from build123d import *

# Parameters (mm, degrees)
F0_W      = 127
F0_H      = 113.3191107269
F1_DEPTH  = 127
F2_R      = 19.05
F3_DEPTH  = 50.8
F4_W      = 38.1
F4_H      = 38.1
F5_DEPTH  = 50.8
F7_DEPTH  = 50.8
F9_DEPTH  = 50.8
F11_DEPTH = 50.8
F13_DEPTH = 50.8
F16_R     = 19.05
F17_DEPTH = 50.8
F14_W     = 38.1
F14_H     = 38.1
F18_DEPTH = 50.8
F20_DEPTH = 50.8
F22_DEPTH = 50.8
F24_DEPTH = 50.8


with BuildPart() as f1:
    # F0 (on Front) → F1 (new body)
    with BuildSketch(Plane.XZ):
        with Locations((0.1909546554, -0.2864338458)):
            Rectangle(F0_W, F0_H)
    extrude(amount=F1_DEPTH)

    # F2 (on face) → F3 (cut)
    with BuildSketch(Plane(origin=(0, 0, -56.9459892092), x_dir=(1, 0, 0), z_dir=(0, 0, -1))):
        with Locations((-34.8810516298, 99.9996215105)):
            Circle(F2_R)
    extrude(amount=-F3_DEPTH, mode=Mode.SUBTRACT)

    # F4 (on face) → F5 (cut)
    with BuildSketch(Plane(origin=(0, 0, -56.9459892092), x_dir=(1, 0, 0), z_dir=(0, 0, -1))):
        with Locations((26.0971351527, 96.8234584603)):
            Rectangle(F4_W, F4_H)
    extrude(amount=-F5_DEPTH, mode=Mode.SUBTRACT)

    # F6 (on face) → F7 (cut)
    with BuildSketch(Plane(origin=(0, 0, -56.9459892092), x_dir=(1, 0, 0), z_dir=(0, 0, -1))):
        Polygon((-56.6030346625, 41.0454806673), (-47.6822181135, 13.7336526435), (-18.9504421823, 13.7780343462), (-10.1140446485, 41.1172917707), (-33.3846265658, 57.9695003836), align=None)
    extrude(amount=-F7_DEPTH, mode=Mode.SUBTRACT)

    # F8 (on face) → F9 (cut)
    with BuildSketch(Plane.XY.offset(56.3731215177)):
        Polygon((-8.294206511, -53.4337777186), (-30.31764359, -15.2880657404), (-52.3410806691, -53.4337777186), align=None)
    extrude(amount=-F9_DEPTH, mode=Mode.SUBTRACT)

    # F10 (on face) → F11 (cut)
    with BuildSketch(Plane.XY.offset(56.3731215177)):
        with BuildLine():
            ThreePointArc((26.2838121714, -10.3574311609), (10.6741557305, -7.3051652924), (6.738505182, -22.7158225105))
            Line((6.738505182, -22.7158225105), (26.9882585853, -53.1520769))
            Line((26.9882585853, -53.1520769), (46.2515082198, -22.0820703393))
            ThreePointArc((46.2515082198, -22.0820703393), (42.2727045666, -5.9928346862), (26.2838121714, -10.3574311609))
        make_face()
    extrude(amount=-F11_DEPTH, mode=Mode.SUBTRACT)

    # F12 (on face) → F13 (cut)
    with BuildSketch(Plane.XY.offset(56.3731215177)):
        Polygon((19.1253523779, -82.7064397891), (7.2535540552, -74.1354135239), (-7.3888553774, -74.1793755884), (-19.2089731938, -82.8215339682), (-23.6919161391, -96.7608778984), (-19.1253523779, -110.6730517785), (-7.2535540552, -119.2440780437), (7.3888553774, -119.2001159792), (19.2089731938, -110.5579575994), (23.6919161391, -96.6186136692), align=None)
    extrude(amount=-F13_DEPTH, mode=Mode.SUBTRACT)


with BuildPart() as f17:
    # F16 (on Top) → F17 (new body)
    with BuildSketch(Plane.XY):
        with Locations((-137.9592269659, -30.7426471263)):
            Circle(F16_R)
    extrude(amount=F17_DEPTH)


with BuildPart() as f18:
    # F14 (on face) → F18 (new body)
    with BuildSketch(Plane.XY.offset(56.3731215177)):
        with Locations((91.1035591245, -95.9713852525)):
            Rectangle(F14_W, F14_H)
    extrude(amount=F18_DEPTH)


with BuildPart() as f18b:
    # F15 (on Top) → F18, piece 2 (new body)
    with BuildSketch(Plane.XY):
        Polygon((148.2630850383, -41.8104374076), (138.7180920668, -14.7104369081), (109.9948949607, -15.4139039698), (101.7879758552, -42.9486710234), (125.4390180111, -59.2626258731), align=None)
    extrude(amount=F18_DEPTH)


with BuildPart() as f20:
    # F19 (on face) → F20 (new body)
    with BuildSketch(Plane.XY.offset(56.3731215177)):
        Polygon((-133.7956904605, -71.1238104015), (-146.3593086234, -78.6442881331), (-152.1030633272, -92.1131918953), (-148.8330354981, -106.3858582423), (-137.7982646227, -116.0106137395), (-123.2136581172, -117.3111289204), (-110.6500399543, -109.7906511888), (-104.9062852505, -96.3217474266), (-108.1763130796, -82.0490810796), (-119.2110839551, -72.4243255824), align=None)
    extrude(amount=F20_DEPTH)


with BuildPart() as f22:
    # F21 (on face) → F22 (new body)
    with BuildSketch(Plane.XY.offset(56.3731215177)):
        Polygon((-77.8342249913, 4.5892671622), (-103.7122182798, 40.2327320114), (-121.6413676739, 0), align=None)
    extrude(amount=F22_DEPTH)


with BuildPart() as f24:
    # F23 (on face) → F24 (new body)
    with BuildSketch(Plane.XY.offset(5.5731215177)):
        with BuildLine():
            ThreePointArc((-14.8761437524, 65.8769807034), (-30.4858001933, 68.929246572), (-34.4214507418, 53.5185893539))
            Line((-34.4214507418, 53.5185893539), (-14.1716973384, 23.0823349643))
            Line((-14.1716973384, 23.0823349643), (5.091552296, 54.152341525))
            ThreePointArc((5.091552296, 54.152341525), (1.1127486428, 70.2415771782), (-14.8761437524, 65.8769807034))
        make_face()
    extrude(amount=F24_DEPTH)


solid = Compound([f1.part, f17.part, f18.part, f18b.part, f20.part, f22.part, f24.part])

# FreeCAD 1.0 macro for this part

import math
import FreeCAD as App
import Part
import Sketcher

V = App.Vector
Q = App.Units.Quantity


def add_polygon(sketch, points):
    """Adds a closed chain of lines whose ends are joined by coincident constraints."""
    first, n = sketch.GeometryCount, len(points)
    for a, b in zip(points, points[1:] + points[:1]):
        sketch.addGeometry(Part.LineSegment(App.Vector(*a, 0), App.Vector(*b, 0)), False)
    for i in range(n):
        sketch.addConstraint(Sketcher.Constraint("Coincident", first + i, 2, first + (i + 1) % n, 1))

doc = App.newDocument("Part")
body = doc.addObject("PartDesign::Body", "Body")

sketch1 = body.newObject("Sketcher::SketchObject", "Sketch")
sketch1.AttachmentSupport = (doc.getObject("XZ_Plane"), [""])
sketch1.MapMode = "FlatFace"
add_polygon(sketch1, [(-63, 56), (-63, -57), (64, -57), (64, 56)])
sketch1.addConstraint(Sketcher.Constraint("Vertical", 0))
sketch1.addConstraint(Sketcher.Constraint("Horizontal", 1))
sketch1.addConstraint(Sketcher.Constraint("Vertical", 2))
sketch1.addConstraint(Sketcher.Constraint("Horizontal", 3))
sketch1.addConstraint(Sketcher.Constraint("DistanceX", 1, 1, 1, 2, Q("5 in")))
sketch1.addConstraint(Sketcher.Constraint("DistanceY", 0, 2, 0, 1, Q("113.319111 mm")))
sketch1.addConstraint(Sketcher.Constraint("DistanceY", 0, 2, -1, 1, Q("56.945989 mm")))
sketch1.addConstraint(Sketcher.Constraint("DistanceX", 0, 2, -1, 1, Q("63.309045 mm")))
pad1 = body.newObject("PartDesign::Pad", "Pad")
pad1.Profile = sketch1
pad1.Length = Q("5 in")

sketch2 = body.newObject("Sketcher::SketchObject", "Sketch001")
sketch2.AttachmentSupport = (doc.getObject("XY_Plane"), [""])
sketch2.MapMode = "FlatFace"
sketch2.AttachmentOffset = App.Placement(V(0, 0, -56.945989), App.Rotation())
sketch2.addGeometry(Part.Circle(V(-35, -100, 0), V(0, 0, 1), 19), False)
sketch2.addConstraint(Sketcher.Constraint("Diameter", 0, Q("1.5 in")))
sketch2.addConstraint(Sketcher.Constraint("DistanceX", 0, 3, -1, 1, Q("34.881052 mm")))
sketch2.addConstraint(Sketcher.Constraint("DistanceY", 0, 3, -1, 1, Q("99.999622 mm")))
pocket1 = body.newObject("PartDesign::Pocket", "Pocket")
pocket1.Profile = sketch2
pocket1.Length = Q("2 in")
pocket1.Reversed = True

sketch3 = body.newObject("Sketcher::SketchObject", "Sketch002")
sketch3.AttachmentSupport = (doc.getObject("XY_Plane"), [""])
sketch3.MapMode = "FlatFace"
sketch3.AttachmentOffset = App.Placement(V(0, 0, -56.945989), App.Rotation())
add_polygon(sketch3, [(7, -116), (7, -78), (45, -78), (45, -116)])
sketch3.addConstraint(Sketcher.Constraint("Vertical", 0))
sketch3.addConstraint(Sketcher.Constraint("Horizontal", 1))
sketch3.addConstraint(Sketcher.Constraint("Vertical", 2))
sketch3.addConstraint(Sketcher.Constraint("Horizontal", 3))
sketch3.addConstraint(Sketcher.Constraint("Equal", 3, 0))
sketch3.addConstraint(Sketcher.Constraint("DistanceX", 1, 1, 1, 2, Q("1.5 in")))
sketch3.addConstraint(Sketcher.Constraint("DistanceY", 0, 2, -1, 1, Q("77.773458 mm")))
sketch3.addConstraint(Sketcher.Constraint("DistanceX", -1, 1, 0, 2, Q("7.047135 mm")))
pocket2 = body.newObject("PartDesign::Pocket", "Pocket001")
pocket2.Profile = sketch3
pocket2.Length = Q("2 in")
pocket2.Reversed = True

sketch4 = body.newObject("Sketcher::SketchObject", "Sketch003")
sketch4.AttachmentSupport = (doc.getObject("XY_Plane"), [""])
sketch4.MapMode = "FlatFace"
sketch4.AttachmentOffset = App.Placement(V(0, 0, -56.945989), App.Rotation())
add_polygon(sketch4, [(-57, -41), (-48, -14), (-19, -14), (-10, -41), (-33, -58)])
sketch4.addConstraint(Sketcher.Constraint("Equal", 0, 1))
sketch4.addConstraint(Sketcher.Constraint("Equal", 1, 2))
sketch4.addConstraint(Sketcher.Constraint("Equal", 2, 3))
sketch4.addConstraint(Sketcher.Constraint("Equal", 3, 4))
sketch4.addConstraint(Sketcher.Constraint("DistanceY", 3, 2, 4, 2, Q("0.6663 in")))
sketch4.addConstraint(Sketcher.Constraint("DistanceY", 3, 2, -1, 1, Q("57.9695 mm")))
sketch4.addConstraint(Sketcher.Constraint("Distance", 0, Q("28.73181 mm")))
sketch4.addConstraint(Sketcher.Constraint("DistanceX", 0, 2, -1, 1, Q("47.682218 mm")))
sketch4.addConstraint(Sketcher.Constraint("DistanceY", 2, 2, -1, 1, Q("41.117292 mm")))
sketch4.addConstraint(Sketcher.Constraint("DistanceY", 1, 2, 0, 2, Q("0.044382 mm")))
pocket3 = body.newObject("PartDesign::Pocket", "Pocket002")
pocket3.Profile = sketch4
pocket3.Length = Q("2 in")
pocket3.Reversed = True

sketch5 = body.newObject("Sketcher::SketchObject", "Sketch004")
sketch5.AttachmentSupport = (doc.getObject("XY_Plane"), [""])
sketch5.MapMode = "FlatFace"
sketch5.AttachmentOffset = App.Placement(V(0, 0, 56.373122), App.Rotation())
add_polygon(sketch5, [(-8, -53), (-30, -15), (-52, -53)])
sketch5.addConstraint(Sketcher.Constraint("Horizontal", 2))
sketch5.addConstraint(Sketcher.Constraint("Equal", 0, 1))
sketch5.addConstraint(Sketcher.Constraint("Angle", 0, Q("120 deg")))
sketch5.addConstraint(Sketcher.Constraint("DistanceX", 2, 1, 2, 2, Q("44.046874 mm")))
sketch5.addConstraint(Sketcher.Constraint("DistanceX", 1, 2, -1, 1, Q("52.341081 mm")))
sketch5.addConstraint(Sketcher.Constraint("DistanceY", 0, 2, -1, 1, Q("15.288066 mm")))
pocket4 = body.newObject("PartDesign::Pocket", "Pocket003")
pocket4.Profile = sketch5
pocket4.Length = Q("2 in")

sketch6 = body.newObject("Sketcher::SketchObject", "Sketch005")
sketch6.AttachmentSupport = (doc.getObject("XY_Plane"), [""])
sketch6.MapMode = "FlatFace"
sketch6.AttachmentOffset = App.Placement(V(0, 0, 56.373122), App.Rotation())
sketch6.addGeometry(Part.ArcOfCircle(Part.Circle(V(17, -17, 0), V(0, 0, 1), 12), math.radians(36), math.radians(209)), False)
sketch6.addGeometry(Part.LineSegment(V(7, -23, 0), V(27, -53, 0)), False)
sketch6.addGeometry(Part.LineSegment(V(27, -53, 0), V(46, -22, 0)), False)
sketch6.addGeometry(Part.ArcOfCircle(Part.Circle(V(36, -16, 0), V(0, 0, 1), 12), math.radians(-32), math.radians(151)), False)
sketch6.addConstraint(Sketcher.Constraint("Coincident", 0, 2, 1, 1))
sketch6.addConstraint(Sketcher.Constraint("Coincident", 1, 2, 2, 1))
sketch6.addConstraint(Sketcher.Constraint("Tangent", 2, 2, 3, 1))
sketch6.addConstraint(Sketcher.Constraint("Coincident", 3, 2, 0, 1))
sketch6.addConstraint(Sketcher.Constraint("Equal", 0, 3))
sketch6.addConstraint(Sketcher.Constraint("Equal", 1, 2))
sketch6.addConstraint(Sketcher.Constraint("Radius", 0, Q("11.581087 mm")))
sketch6.addConstraint(Sketcher.Constraint("DistanceY", 2, 2, 3, 2, Q("0.4616 in")))
sketch6.addConstraint(Sketcher.Constraint("DistanceY", 2, 2, 3, 3, Q("6.102499 mm")))
sketch6.addConstraint(Sketcher.Constraint("DistanceX", -1, 1, 0, 3, Q("16.863382 mm")))
sketch6.addConstraint(Sketcher.Constraint("DistanceX", -1, 1, 3, 3, Q("36.408689 mm")))
sketch6.addConstraint(Sketcher.Constraint("DistanceY", 3, 3, -1, 1, Q("15.979571 mm")))
sketch6.addConstraint(Sketcher.Constraint("DistanceX", -1, 1, 1, 2, Q("26.988259 mm")))
pocket5 = body.newObject("PartDesign::Pocket", "Pocket004")
pocket5.Profile = sketch6
pocket5.Length = Q("2 in")

sketch7 = body.newObject("Sketcher::SketchObject", "Sketch006")
sketch7.AttachmentSupport = (doc.getObject("XY_Plane"), [""])
sketch7.MapMode = "FlatFace"
sketch7.AttachmentOffset = App.Placement(V(0, 0, 56.373122), App.Rotation())
add_polygon(sketch7, [(19.125352, -82.70644), (7.253554, -74.135414), (-7.388855, -74.179376), (-19.208973, -82.821534), (-23.691916, -96.760878), (-19.125352, -110.673052), (-7.253554, -119.244078), (7.388855, -119.200116), (19.208973, -110.557958), (23.691916, -96.618614)])
sketch7.addConstraint(Sketcher.Constraint("Parallel", 0, 5))
sketch7.addConstraint(Sketcher.Constraint("Parallel", 1, 6))
sketch7.addConstraint(Sketcher.Constraint("Parallel", 2, 7))
sketch7.addConstraint(Sketcher.Constraint("Parallel", 3, 8))
sketch7.addConstraint(Sketcher.Constraint("Parallel", 4, 9))
sketch7.addConstraint(Sketcher.Constraint("Equal", 0, 1))
sketch7.addConstraint(Sketcher.Constraint("Equal", 1, 2))
sketch7.addConstraint(Sketcher.Constraint("Equal", 2, 3))
sketch7.addConstraint(Sketcher.Constraint("Equal", 3, 4))
sketch7.addConstraint(Sketcher.Constraint("Equal", 4, 5))
sketch7.addConstraint(Sketcher.Constraint("Equal", 5, 6))
sketch7.addConstraint(Sketcher.Constraint("Equal", 6, 7))
sketch7.addConstraint(Sketcher.Constraint("DistanceX", 1, 2, -1, 1, Q("0.2908998 in")))
sketch7.addConstraint(Sketcher.Constraint("DistanceX", -1, 1, 6, 2, Q("0.2908998 in")))
sketch7.addConstraint(Sketcher.Constraint("DistanceX", 4, 2, 5, 2, Q("11.871798 mm")))
sketch7.addConstraint(Sketcher.Constraint("DistanceY", 5, 2, 3, 2, Q("22.4832 mm")))
sketch7.addConstraint(Sketcher.Constraint("DistanceX", 1, 2, 5, 2, Q("0.135301 mm")))
sketch7.addConstraint(Sketcher.Constraint("DistanceY", 4, 2, -1, 1, Q("110.673052 mm")))
sketch7.addConstraint(Sketcher.Constraint("DistanceY", 5, 2, -1, 1, Q("119.244078 mm")))
sketch7.addConstraint(Sketcher.Constraint("DistanceY", 9, 2, -1, 1, Q("82.70644 mm")))
pocket6 = body.newObject("PartDesign::Pocket", "Pocket005")
pocket6.Profile = sketch7
pocket6.Length = Q("2 in")
body2 = doc.addObject("PartDesign::Body", "Body001")

sketch8 = body2.newObject("Sketcher::SketchObject", "Sketch007")
sketch8.AttachmentSupport = (doc.getObject("XY_Plane001"), [""])
sketch8.MapMode = "FlatFace"
sketch8.addGeometry(Part.Circle(V(-138, -31, 0), V(0, 0, 1), 19), False)
sketch8.addConstraint(Sketcher.Constraint("Diameter", 0, Q("1.5 in")))
sketch8.addConstraint(Sketcher.Constraint("DistanceX", 0, 3, -1, 1, Q("137.959227 mm")))
sketch8.addConstraint(Sketcher.Constraint("DistanceY", 0, 3, -1, 1, Q("30.742647 mm")))
pad2 = body2.newObject("PartDesign::Pad", "Pad001")
pad2.Profile = sketch8
pad2.Length = Q("2 in")
body3 = doc.addObject("PartDesign::Body", "Body002")

sketch9 = body3.newObject("Sketcher::SketchObject", "Sketch008")
sketch9.AttachmentSupport = (doc.getObject("XY_Plane002"), [""])
sketch9.MapMode = "FlatFace"
sketch9.AttachmentOffset = App.Placement(V(0, 0, 56.373122), App.Rotation())
add_polygon(sketch9, [(72, -77), (72, -115), (110, -115), (110, -77)])
sketch9.addConstraint(Sketcher.Constraint("Vertical", 0))
sketch9.addConstraint(Sketcher.Constraint("Horizontal", 1))
sketch9.addConstraint(Sketcher.Constraint("Vertical", 2))
sketch9.addConstraint(Sketcher.Constraint("Horizontal", 3))
sketch9.addConstraint(Sketcher.Constraint("Equal", 3, 0))
sketch9.addConstraint(Sketcher.Constraint("DistanceX", 1, 1, 1, 2, Q("1.5 in")))
sketch9.addConstraint(Sketcher.Constraint("DistanceX", -1, 1, 0, 2, Q("72.053559 mm")))
sketch9.addConstraint(Sketcher.Constraint("DistanceY", 0, 2, -1, 1, Q("115.021385 mm")))
pad3 = body3.newObject("PartDesign::Pad", "Pad002")
pad3.Profile = sketch9
pad3.Length = Q("2 in")
body4 = doc.addObject("PartDesign::Body", "Body003")

sketch10 = body4.newObject("Sketcher::SketchObject", "Sketch009")
sketch10.AttachmentSupport = (doc.getObject("XY_Plane003"), [""])
sketch10.MapMode = "FlatFace"
add_polygon(sketch10, [(148, -42), (139, -15), (110, -15), (102, -43), (125, -59)])
sketch10.addConstraint(Sketcher.Constraint("Equal", 0, 1))
sketch10.addConstraint(Sketcher.Constraint("Equal", 1, 2))
sketch10.addConstraint(Sketcher.Constraint("Equal", 2, 3))
sketch10.addConstraint(Sketcher.Constraint("Equal", 3, 4))
sketch10.addConstraint(Sketcher.Constraint("DistanceY", 4, 2, 0, 2, Q("27.100001 mm")))
sketch10.addConstraint(Sketcher.Constraint("Distance", 0, Q("28.73181 mm")))
sketch10.addConstraint(Sketcher.Constraint("DistanceY", 2, 2, -1, 1, Q("42.948671 mm")))
sketch10.addConstraint(Sketcher.Constraint("DistanceX", -1, 1, 3, 2, Q("125.439018 mm")))
sketch10.addConstraint(Sketcher.Constraint("DistanceX", 2, 2, 1, 2, Q("8.206919 mm")))
sketch10.addConstraint(Sketcher.Constraint("DistanceY", 3, 2, 1, 2, Q("43.848722 mm")))
pad4 = body4.newObject("PartDesign::Pad", "Pad003")
pad4.Profile = sketch10
pad4.Length = Q("2 in")
body5 = doc.addObject("PartDesign::Body", "Body004")

sketch11 = body5.newObject("Sketcher::SketchObject", "Sketch010")
sketch11.AttachmentSupport = (doc.getObject("XY_Plane004"), [""])
sketch11.MapMode = "FlatFace"
sketch11.AttachmentOffset = App.Placement(V(0, 0, 56.373122), App.Rotation())
add_polygon(sketch11, [(-134, -71), (-146, -79), (-152, -92), (-149, -106), (-138, -116), (-123, -117), (-111, -110), (-105, -96), (-108, -82), (-119, -72)])
sketch11.addConstraint(Sketcher.Constraint("Parallel", 0, 5))
sketch11.addConstraint(Sketcher.Constraint("Parallel", 1, 6))
sketch11.addConstraint(Sketcher.Constraint("Parallel", 2, 7))
sketch11.addConstraint(Sketcher.Constraint("Parallel", 3, 8))
sketch11.addConstraint(Sketcher.Constraint("Parallel", 4, 9))
sketch11.addConstraint(Sketcher.Constraint("Equal", 0, 1))
sketch11.addConstraint(Sketcher.Constraint("Equal", 1, 2))
sketch11.addConstraint(Sketcher.Constraint("Equal", 2, 3))
sketch11.addConstraint(Sketcher.Constraint("Equal", 3, 4))
sketch11.addConstraint(Sketcher.Constraint("Equal", 4, 5))
sketch11.addConstraint(Sketcher.Constraint("Equal", 5, 6))
sketch11.addConstraint(Sketcher.Constraint("Equal", 6, 7))
sketch11.addConstraint(Sketcher.Constraint("DistanceX", 1, 2, 3, 2, Q("14.304799 mm")))
sketch11.addConstraint(Sketcher.Constraint("DistanceX", 0, 2, -1, 1, Q("146.359309 mm")))
sketch11.addConstraint(Sketcher.Constraint("DistanceY", 0, 2, -1, 1, Q("78.644288 mm")))
sketch11.addConstraint(Sketcher.Constraint("DistanceY", 1, 2, -1, 1, Q("92.113192 mm")))
sketch11.addConstraint(Sketcher.Constraint("DistanceY", 2, 2, -1, 1, Q("106.385858 mm")))
sketch11.addConstraint(Sketcher.Constraint("DistanceX", 4, 2, -1, 1, Q("123.213658 mm")))
sketch11.addConstraint(Sketcher.Constraint("DistanceY", 4, 2, -1, 1, Q("117.311129 mm")))
sketch11.addConstraint(Sketcher.Constraint("DistanceX", 5, 2, -1, 1, Q("110.65004 mm")))
pad5 = body5.newObject("PartDesign::Pad", "Pad004")
pad5.Profile = sketch11
pad5.Length = Q("2 in")
body6 = doc.addObject("PartDesign::Body", "Body005")

sketch12 = body6.newObject("Sketcher::SketchObject", "Sketch011")
sketch12.AttachmentSupport = (doc.getObject("XY_Plane005"), [""])
sketch12.MapMode = "FlatFace"
sketch12.AttachmentOffset = App.Placement(V(0, 0, 56.373122), App.Rotation())
add_polygon(sketch12, [(-78, 5), (-104, 40), (-122, 0)])
sketch12.addConstraint(Sketcher.Constraint("PointOnObject", 1, 2, -1))
sketch12.addConstraint(Sketcher.Constraint("Equal", 0, 1))
sketch12.addConstraint(Sketcher.Constraint("Equal", 1, 2))
sketch12.addConstraint(Sketcher.Constraint("DistanceX", 0, 2, -1, 1, Q("103.712218 mm")))
sketch12.addConstraint(Sketcher.Constraint("DistanceX", 1, 2, 0, 2, Q("17.929149 mm")))
sketch12.addConstraint(Sketcher.Constraint("Distance", 0, Q("44.046874 mm")))
pad6 = body6.newObject("PartDesign::Pad", "Pad005")
pad6.Profile = sketch12
pad6.Length = Q("2 in")
body7 = doc.addObject("PartDesign::Body", "Body006")

sketch13 = body7.newObject("Sketcher::SketchObject", "Sketch012")
sketch13.AttachmentSupport = (doc.getObject("XY_Plane006"), [""])
sketch13.MapMode = "FlatFace"
sketch13.AttachmentOffset = App.Placement(V(0, 0, 5.573122), App.Rotation())
sketch13.addGeometry(Part.ArcOfCircle(Part.Circle(V(-24, 59, 0), V(0, 0, 1), 12), math.radians(36), math.radians(209)), False)
sketch13.addGeometry(Part.LineSegment(V(-34, 54, 0), V(-14, 23, 0)), False)
sketch13.addGeometry(Part.LineSegment(V(-14, 23, 0), V(5, 54, 0)), False)
sketch13.addGeometry(Part.ArcOfCircle(Part.Circle(V(-5, 60, 0), V(0, 0, 1), 12), math.radians(-32), math.radians(151)), False)
sketch13.addConstraint(Sketcher.Constraint("Coincident", 0, 2, 1, 1))
sketch13.addConstraint(Sketcher.Constraint("Coincident", 1, 2, 2, 1))
sketch13.addConstraint(Sketcher.Constraint("Tangent", 2, 2, 3, 1))
sketch13.addConstraint(Sketcher.Constraint("Coincident", 3, 2, 0, 1))
sketch13.addConstraint(Sketcher.Constraint("Equal", 0, 3))
sketch13.addConstraint(Sketcher.Constraint("Equal", 1, 2))
sketch13.addConstraint(Sketcher.Constraint("Radius", 0, Q("11.581087 mm")))
sketch13.addConstraint(Sketcher.Constraint("DistanceY", 2, 2, 3, 2, Q("0.4616 in")))
sketch13.addConstraint(Sketcher.Constraint("DistanceY", 2, 2, 3, 3, Q("6.102499 mm")))
sketch13.addConstraint(Sketcher.Constraint("DistanceY", -1, 1, 0, 3, Q("59.140729 mm")))
sketch13.addConstraint(Sketcher.Constraint("DistanceY", -1, 1, 3, 3, Q("60.254841 mm")))
sketch13.addConstraint(Sketcher.Constraint("DistanceX", 0, 2, -1, 1, Q("34.421451 mm")))
sketch13.addConstraint(Sketcher.Constraint("DistanceY", -1, 1, 0, 2, Q("53.518589 mm")))
pad7 = body7.newObject("PartDesign::Pad", "Pad006")
pad7.Profile = sketch13
pad7.Length = Q("2 in")

doc.recompute()
